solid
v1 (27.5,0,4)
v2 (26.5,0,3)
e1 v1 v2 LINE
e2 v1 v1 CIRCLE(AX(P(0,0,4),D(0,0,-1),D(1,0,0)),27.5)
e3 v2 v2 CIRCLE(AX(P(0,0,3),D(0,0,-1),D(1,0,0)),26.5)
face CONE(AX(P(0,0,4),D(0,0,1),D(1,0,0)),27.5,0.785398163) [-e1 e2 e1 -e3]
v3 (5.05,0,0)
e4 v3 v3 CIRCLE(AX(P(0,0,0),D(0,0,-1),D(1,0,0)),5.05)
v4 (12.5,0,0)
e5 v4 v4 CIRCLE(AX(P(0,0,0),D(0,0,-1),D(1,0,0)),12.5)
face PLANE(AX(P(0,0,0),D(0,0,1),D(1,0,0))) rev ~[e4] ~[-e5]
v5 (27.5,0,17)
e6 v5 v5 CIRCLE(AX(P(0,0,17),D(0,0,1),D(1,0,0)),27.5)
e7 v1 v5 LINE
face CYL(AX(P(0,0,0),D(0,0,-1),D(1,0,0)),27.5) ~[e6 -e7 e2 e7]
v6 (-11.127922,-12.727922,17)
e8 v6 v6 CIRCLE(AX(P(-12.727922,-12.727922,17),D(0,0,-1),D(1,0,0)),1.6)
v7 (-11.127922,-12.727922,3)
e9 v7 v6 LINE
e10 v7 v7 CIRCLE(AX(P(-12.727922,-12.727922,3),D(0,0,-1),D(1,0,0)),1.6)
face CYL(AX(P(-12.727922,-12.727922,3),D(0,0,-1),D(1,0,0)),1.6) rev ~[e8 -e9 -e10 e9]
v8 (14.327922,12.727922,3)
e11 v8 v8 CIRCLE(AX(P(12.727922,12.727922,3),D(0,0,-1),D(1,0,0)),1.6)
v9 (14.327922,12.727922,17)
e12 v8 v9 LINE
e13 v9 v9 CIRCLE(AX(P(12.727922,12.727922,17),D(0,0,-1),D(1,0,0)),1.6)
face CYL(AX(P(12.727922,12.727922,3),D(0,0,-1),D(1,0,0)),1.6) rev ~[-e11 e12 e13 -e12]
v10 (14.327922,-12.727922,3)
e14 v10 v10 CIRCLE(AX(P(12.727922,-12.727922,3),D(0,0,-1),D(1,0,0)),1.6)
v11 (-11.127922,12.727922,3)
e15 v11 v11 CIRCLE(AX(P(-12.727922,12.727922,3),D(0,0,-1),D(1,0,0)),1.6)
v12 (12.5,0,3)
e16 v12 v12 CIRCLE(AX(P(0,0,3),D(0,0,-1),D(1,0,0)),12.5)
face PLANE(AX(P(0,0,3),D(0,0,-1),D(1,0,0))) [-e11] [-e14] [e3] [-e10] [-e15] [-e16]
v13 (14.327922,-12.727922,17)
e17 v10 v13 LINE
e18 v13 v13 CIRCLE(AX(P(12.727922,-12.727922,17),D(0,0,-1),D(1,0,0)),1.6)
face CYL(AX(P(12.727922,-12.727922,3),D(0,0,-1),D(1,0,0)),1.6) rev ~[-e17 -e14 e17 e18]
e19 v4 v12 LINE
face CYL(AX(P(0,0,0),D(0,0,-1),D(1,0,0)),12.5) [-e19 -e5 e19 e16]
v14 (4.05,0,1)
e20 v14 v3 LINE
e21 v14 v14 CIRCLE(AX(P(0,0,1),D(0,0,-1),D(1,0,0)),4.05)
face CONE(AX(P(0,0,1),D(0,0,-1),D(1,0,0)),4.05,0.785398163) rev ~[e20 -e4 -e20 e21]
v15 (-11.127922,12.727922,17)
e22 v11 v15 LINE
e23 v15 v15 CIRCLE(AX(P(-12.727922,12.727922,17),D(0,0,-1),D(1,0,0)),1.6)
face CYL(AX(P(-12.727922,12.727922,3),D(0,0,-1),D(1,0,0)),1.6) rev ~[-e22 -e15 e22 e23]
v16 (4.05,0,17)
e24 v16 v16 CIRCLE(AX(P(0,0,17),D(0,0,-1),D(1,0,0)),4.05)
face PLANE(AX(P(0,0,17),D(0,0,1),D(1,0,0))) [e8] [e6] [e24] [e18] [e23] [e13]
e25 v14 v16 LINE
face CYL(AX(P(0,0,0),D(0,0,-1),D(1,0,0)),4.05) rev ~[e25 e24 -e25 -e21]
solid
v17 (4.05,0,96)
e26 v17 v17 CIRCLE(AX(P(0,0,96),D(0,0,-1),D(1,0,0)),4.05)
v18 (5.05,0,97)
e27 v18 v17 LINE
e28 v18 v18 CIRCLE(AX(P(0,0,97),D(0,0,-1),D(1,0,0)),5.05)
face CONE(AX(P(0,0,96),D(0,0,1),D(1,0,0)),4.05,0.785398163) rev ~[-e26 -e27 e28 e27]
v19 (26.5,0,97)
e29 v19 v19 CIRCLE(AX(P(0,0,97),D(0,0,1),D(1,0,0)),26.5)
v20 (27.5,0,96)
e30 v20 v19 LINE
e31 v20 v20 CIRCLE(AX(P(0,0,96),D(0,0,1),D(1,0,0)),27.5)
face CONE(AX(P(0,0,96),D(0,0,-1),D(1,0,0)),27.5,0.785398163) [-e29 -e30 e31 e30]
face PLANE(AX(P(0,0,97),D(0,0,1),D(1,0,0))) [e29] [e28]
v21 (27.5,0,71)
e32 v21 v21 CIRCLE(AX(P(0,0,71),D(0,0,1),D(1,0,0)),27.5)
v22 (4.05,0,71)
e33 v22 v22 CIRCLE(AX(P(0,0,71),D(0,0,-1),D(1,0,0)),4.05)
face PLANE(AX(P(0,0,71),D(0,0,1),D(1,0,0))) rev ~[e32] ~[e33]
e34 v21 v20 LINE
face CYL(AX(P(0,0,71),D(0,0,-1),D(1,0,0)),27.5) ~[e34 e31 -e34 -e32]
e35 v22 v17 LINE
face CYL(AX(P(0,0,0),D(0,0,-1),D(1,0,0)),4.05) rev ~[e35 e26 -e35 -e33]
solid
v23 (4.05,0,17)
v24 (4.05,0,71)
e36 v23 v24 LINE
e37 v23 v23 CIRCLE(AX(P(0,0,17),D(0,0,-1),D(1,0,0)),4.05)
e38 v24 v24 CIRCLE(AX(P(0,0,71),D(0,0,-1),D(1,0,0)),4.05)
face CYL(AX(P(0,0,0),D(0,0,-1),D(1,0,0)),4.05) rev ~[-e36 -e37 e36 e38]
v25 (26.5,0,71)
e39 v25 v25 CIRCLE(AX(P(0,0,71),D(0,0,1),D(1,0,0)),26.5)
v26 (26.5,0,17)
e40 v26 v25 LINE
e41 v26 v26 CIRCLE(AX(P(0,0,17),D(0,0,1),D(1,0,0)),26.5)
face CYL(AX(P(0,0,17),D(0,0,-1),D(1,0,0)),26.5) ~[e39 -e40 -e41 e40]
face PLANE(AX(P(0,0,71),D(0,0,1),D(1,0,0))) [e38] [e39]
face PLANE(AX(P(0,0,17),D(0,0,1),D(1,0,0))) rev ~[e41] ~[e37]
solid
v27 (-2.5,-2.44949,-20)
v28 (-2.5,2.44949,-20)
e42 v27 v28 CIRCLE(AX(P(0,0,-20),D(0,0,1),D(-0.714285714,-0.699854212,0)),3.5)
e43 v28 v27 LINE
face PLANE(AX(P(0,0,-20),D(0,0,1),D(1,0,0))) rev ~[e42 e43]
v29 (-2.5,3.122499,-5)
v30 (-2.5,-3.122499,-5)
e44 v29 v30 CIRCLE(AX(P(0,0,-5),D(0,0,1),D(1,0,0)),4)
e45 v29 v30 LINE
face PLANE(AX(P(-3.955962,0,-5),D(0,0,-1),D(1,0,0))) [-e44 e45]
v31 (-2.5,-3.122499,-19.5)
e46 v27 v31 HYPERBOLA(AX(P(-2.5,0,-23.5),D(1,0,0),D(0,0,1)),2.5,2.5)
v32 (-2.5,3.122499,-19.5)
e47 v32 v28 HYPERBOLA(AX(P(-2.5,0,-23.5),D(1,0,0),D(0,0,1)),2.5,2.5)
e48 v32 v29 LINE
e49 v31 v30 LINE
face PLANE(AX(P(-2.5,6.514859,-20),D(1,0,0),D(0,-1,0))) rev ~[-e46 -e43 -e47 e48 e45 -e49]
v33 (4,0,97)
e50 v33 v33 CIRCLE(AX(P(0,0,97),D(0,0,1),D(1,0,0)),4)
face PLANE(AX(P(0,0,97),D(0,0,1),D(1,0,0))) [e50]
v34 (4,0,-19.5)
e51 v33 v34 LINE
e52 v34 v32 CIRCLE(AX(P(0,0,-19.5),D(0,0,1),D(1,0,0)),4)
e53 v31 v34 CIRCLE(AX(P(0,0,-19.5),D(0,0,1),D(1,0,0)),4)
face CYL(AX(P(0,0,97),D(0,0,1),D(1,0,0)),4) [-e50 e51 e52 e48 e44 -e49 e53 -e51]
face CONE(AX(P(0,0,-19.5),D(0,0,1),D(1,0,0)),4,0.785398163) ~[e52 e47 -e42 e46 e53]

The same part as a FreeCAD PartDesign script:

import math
import FreeCAD as App
import Part
import Sketcher

V = App.Vector
Q = App.Units.Quantity


def edges_at(feature, points):
    """Names of the edges that pass closest to the given points."""
    edges = feature.Shape.Edges
    near = lambda p: min(range(len(edges)), key=lambda i: edges[i].distToShape(Part.Vertex(*p))[0])
    return sorted({f"Edge{near(p) + 1}" for p in points})

doc = App.newDocument("Part")
params = doc.addObject("Spreadsheet::Sheet", "Params")
for row, (alias, value) in enumerate([
    ("sketch1_diameter", "55 mm"),
    ("pad1_length", "17 mm"),
    ("sketch2_diameter", "55 mm"),
    ("sketch2_diameter2", "25 mm"),
    ("pocket1_length", "3 mm"),
    ("chamfer_size", "1 mm"),
    ("sketch3_diameter", "53 mm"),
    ("pad2_length", "54 mm"),
    ("sketch4_diameter", "55 mm"),
    ("pad3_length", "26 mm"),
    ("chamfer2_size", "1 mm"),
    ("sketch5_diameter", "8.1 mm"),
    ("pad4_length", "97.001 mm"),
    ("chamfer3_size", "1 mm"),
    ("sketch6_diameter", "3.2 mm"),
    ("chamfer4_size", "1 mm"),
    ("sketch7_diameter", "8 mm"),
    ("pad5_length", "117 mm"),
    ("chamfer5_size", "0.5 mm"),
    ("pocket3_length", "15 mm"),
], start=1):
    params.set(f"A{row}", alias)
    params.set(f"B{row}", "=" + value)
    params.setAlias(f"B{row}", alias)

body = doc.addObject("PartDesign::Body", "Body")

sketch1 = body.newObject("Sketcher::SketchObject", "Sketch")
sketch1.AttachmentSupport = (doc.getObject("XY_Plane"), [""])
sketch1.MapMode = "FlatFace"
sketch1.addGeometry(Part.Circle(V(0, 0, 0), V(0, 0, 1), 28), False)
sketch1.addConstraint([
    Sketcher.Constraint("Coincident", 0, 3, -1, 1),
    Sketcher.Constraint("Diameter", 0, Q("55 mm")),
])
sketch1.setExpression("Constraints[1]", "Params.sketch1_diameter")
pad1 = body.newObject("PartDesign::Pad", "Pad")
pad1.Profile = sketch1
pad1.setExpression("Length", "Params.pad1_length")

sketch2 = body.newObject("Sketcher::SketchObject", "Sketch001")
sketch2.AttachmentSupport = (doc.getObject("XY_Plane"), [""])
sketch2.MapMode = "FlatFace"
sketch2.addGeometry([
    Part.Circle(V(0, 0, 0), V(0, 0, 1), 28),
    Part.Circle(V(0, 0, 0), V(0, 0, 1), 12),
], False)
sketch2.addConstraint([
    Sketcher.Constraint("Coincident", 0, 3, -1, 1),
    Sketcher.Constraint("Coincident", 1, 3, -1, 1),
    Sketcher.Constraint("Diameter", 0, Q("55 mm")),
    Sketcher.Constraint("Diameter", 1, Q("25 mm")),
])
sketch2.setExpression("Constraints[2]", "Params.sketch2_diameter")
sketch2.setExpression("Constraints[3]", "Params.sketch2_diameter2")
pocket1 = body.newObject("PartDesign::Pocket", "Pocket")
pocket1.Profile = sketch2
pocket1.setExpression("Length", "Params.pocket1_length")
pocket1.Reversed = True
doc.recompute()

chamfer = body.newObject("PartDesign::Chamfer", "Chamfer")
chamfer.Base = (pocket1, edges_at(pocket1, [(-27.5, 0, 3)]))
chamfer.setExpression("Size", "Params.chamfer_size")
body2 = doc.addObject("PartDesign::Body", "Body001")

sketch3 = body2.newObject("Sketcher::SketchObject", "Sketch002")
sketch3.AttachmentSupport = (doc.getObject("XY_Plane001"), [""])
sketch3.MapMode = "FlatFace"
sketch3.AttachmentOffset = App.Placement(V(0, 0, 17), App.Rotation())
sketch3.addGeometry(Part.Circle(V(0, 0, 0), V(0, 0, 1), 26), False)
sketch3.addConstraint([
    Sketcher.Constraint("Coincident", 0, 3, -1, 1),
    Sketcher.Constraint("Diameter", 0, Q("53 mm")),
])
sketch3.setExpression("Constraints[1]", "Params.sketch3_diameter")
pad2 = body2.newObject("PartDesign::Pad", "Pad001")
pad2.Profile = sketch3
pad2.setExpression("Length", "Params.pad2_length")
body3 = doc.addObject("PartDesign::Body", "Body002")

sketch4 = body3.newObject("Sketcher::SketchObject", "Sketch003")
sketch4.AttachmentSupport = (doc.getObject("XY_Plane002"), [""])
sketch4.MapMode = "FlatFace"
sketch4.AttachmentOffset = App.Placement(V(0, 0, 71), App.Rotation())
sketch4.addGeometry(Part.Circle(V(0, 0, 0), V(0, 0, 1), 28), False)
sketch4.addConstraint([
    Sketcher.Constraint("Coincident", 0, 3, -1, 1),
    Sketcher.Constraint("Diameter", 0, Q("55 mm")),
])
sketch4.setExpression("Constraints[1]", "Params.sketch4_diameter")
pad3 = body3.newObject("PartDesign::Pad", "Pad002")
pad3.Profile = sketch4
pad3.setExpression("Length", "Params.pad3_length")
doc.recompute()

chamfer2 = body3.newObject("PartDesign::Chamfer", "Chamfer001")
chamfer2.Base = (pad3, edges_at(pad3, [(-27.5, 0, 97)]))
chamfer2.setExpression("Size", "Params.chamfer2_size")
body4 = doc.addObject("PartDesign::Body", "Body003")

sketch5 = body4.newObject("Sketcher::SketchObject", "Sketch004")
sketch5.AttachmentSupport = (doc.getObject("XY_Plane003"), [""])
sketch5.MapMode = "FlatFace"
sketch5.addGeometry(Part.Circle(V(0, 0, 0), V(0, 0, 1), 4), False)
sketch5.addConstraint([
    Sketcher.Constraint("Coincident", 0, 3, -1, 1),
    Sketcher.Constraint("Diameter", 0, Q("8.1 mm")),
])
sketch5.setExpression("Constraints[1]", "Params.sketch5_diameter")
pad4 = body4.newObject("PartDesign::Pad", "Pad003")
pad4.Profile = sketch5
pad4.setExpression("Length", "Params.pad4_length")
doc.recompute()

body5 = doc.addObject("PartDesign::Body", "Body004")
body5.BaseFeature = body4
boolean = body.newObject("PartDesign::Boolean", "Boolean")
boolean.Type = "Cut"
boolean.addObjects([body5])
doc.recompute()

chamfer3 = body.newObject("PartDesign::Chamfer", "Chamfer002")
chamfer3.Base = (boolean, edges_at(boolean, [(-4.05, 0, 0)]))
chamfer3.setExpression("Size", "Params.chamfer3_size")

sketch6 = body.newObject("Sketcher::SketchObject", "Sketch005")
sketch6.AttachmentSupport = (doc.getObject("XY_Plane"), [""])
sketch6.MapMode = "FlatFace"
sketch6.AttachmentOffset = App.Placement(V(0, 0, 3), App.Rotation())
sketch6.addGeometry([
    Part.Circle(V(-12.7, -12.7, 0), V(0, 0, 1), 1.6),
    Part.Circle(V(-12.7, 12.7, 0), V(0, 0, 1), 1.6),
    Part.Circle(V(12.7, 12.7, 0), V(0, 0, 1), 1.6),
    Part.Circle(V(12.7, -12.7, 0), V(0, 0, 1), 1.6),
], False)
sketch6.addConstraint([
    Sketcher.Constraint("Equal", 0, 1),
    Sketcher.Constraint("Equal", 1, 2),
    Sketcher.Constraint("Equal", 2, 3),
    Sketcher.Constraint("Symmetric", 0, 3, 2, 3, -1, 1),
    Sketcher.Constraint("Symmetric", 1, 3, 3, 3, -1, 1),
    Sketcher.Constraint("Symmetric", 1, 3, 2, 3, -2),
    Sketcher.Constraint("Diameter", 0, Q("3.2 mm")),
    Sketcher.Constraint("DistanceX", 0, 3, -1, 1, Q("12.727922 mm")),
    Sketcher.Constraint("DistanceY", 0, 3, -1, 1, Q("12.727922 mm")),
])
sketch6.setExpression("Constraints[6]", "Params.sketch6_diameter")
pocket2 = body.newObject("PartDesign::Pocket", "Pocket001")
pocket2.Profile = sketch6
pocket2.Type = "ThroughAll"
pocket2.Reversed = True
doc.recompute()

body6 = doc.addObject("PartDesign::Body", "Body005")
body6.BaseFeature = body4
boolean2 = body2.newObject("PartDesign::Boolean", "Boolean001")
boolean2.Type = "Cut"
boolean2.addObjects([body6])
doc.recompute()

boolean3 = body3.newObject("PartDesign::Boolean", "Boolean002")
boolean3.Type = "Cut"
boolean3.addObjects([body4])
doc.recompute()

chamfer4 = body3.newObject("PartDesign::Chamfer", "Chamfer003")
chamfer4.Base = (boolean3, edges_at(boolean3, [(-4.05, 0, 97)]))
chamfer4.setExpression("Size", "Params.chamfer4_size")
body7 = doc.addObject("PartDesign::Body", "Body006")

sketch7 = body7.newObject("Sketcher::SketchObject", "Sketch006")
sketch7.AttachmentSupport = (doc.getObject("XY_Plane006"), [""])
sketch7.MapMode = "FlatFace"
sketch7.AttachmentOffset = App.Placement(V(0, 0, 97), App.Rotation())
sketch7.addGeometry(Part.Circle(V(0, 0, 0), V(0, 0, 1), 4), False)
sketch7.addConstraint([
    Sketcher.Constraint("Coincident", 0, 3, -1, 1),
    Sketcher.Constraint("Diameter", 0, Q("8 mm")),
])
sketch7.setExpression("Constraints[1]", "Params.sketch7_diameter")
pad5 = body7.newObject("PartDesign::Pad", "Pad004")
pad5.Profile = sketch7
pad5.setExpression("Length", "Params.pad5_length")
pad5.Reversed = True
doc.recompute()

chamfer5 = body7.newObject("PartDesign::Chamfer", "Chamfer004")
chamfer5.Base = (pad5, edges_at(pad5, [(-4, 0, -20)]))
chamfer5.setExpression("Size", "Params.chamfer5_size")

sketch8 = body7.newObject("Sketcher::SketchObject", "Sketch007")
sketch8.AttachmentSupport = (doc.getObject("XY_Plane006"), [""])
sketch8.MapMode = "FlatFace"
sketch8.AttachmentOffset = App.Placement(V(0, 0, -20), App.Rotation())
sketch8.addGeometry([
    Part.LineSegment(V(-2, 7, 0), V(-2, -7, 0)),
    Part.ArcOfCircle(Part.Circle(V(0, 0, 0), V(0, 0, 1), 7), math.radians(111), math.radians(249)),
], False)
sketch8.addConstraint([
    Sketcher.Constraint("Coincident", 0, 1, 1, 1),
    Sketcher.Constraint("Coincident", 1, 2, 0, 2),
    Sketcher.Constraint("Vertical", 0),
    Sketcher.Constraint("Coincident", 1, 3, -1, 1),
    Sketcher.Constraint("DistanceX", 0, 1, -1, 1, Q("2.5 mm")),
    Sketcher.Constraint("Radius", 1, Q("6.978065 mm")),
])
pocket3 = body7.newObject("PartDesign::Pocket", "Pocket002")
pocket3.Profile = sketch8
pocket3.setExpression("Length", "Params.pocket3_length")
pocket3.Reversed = True

doc.recompute()
